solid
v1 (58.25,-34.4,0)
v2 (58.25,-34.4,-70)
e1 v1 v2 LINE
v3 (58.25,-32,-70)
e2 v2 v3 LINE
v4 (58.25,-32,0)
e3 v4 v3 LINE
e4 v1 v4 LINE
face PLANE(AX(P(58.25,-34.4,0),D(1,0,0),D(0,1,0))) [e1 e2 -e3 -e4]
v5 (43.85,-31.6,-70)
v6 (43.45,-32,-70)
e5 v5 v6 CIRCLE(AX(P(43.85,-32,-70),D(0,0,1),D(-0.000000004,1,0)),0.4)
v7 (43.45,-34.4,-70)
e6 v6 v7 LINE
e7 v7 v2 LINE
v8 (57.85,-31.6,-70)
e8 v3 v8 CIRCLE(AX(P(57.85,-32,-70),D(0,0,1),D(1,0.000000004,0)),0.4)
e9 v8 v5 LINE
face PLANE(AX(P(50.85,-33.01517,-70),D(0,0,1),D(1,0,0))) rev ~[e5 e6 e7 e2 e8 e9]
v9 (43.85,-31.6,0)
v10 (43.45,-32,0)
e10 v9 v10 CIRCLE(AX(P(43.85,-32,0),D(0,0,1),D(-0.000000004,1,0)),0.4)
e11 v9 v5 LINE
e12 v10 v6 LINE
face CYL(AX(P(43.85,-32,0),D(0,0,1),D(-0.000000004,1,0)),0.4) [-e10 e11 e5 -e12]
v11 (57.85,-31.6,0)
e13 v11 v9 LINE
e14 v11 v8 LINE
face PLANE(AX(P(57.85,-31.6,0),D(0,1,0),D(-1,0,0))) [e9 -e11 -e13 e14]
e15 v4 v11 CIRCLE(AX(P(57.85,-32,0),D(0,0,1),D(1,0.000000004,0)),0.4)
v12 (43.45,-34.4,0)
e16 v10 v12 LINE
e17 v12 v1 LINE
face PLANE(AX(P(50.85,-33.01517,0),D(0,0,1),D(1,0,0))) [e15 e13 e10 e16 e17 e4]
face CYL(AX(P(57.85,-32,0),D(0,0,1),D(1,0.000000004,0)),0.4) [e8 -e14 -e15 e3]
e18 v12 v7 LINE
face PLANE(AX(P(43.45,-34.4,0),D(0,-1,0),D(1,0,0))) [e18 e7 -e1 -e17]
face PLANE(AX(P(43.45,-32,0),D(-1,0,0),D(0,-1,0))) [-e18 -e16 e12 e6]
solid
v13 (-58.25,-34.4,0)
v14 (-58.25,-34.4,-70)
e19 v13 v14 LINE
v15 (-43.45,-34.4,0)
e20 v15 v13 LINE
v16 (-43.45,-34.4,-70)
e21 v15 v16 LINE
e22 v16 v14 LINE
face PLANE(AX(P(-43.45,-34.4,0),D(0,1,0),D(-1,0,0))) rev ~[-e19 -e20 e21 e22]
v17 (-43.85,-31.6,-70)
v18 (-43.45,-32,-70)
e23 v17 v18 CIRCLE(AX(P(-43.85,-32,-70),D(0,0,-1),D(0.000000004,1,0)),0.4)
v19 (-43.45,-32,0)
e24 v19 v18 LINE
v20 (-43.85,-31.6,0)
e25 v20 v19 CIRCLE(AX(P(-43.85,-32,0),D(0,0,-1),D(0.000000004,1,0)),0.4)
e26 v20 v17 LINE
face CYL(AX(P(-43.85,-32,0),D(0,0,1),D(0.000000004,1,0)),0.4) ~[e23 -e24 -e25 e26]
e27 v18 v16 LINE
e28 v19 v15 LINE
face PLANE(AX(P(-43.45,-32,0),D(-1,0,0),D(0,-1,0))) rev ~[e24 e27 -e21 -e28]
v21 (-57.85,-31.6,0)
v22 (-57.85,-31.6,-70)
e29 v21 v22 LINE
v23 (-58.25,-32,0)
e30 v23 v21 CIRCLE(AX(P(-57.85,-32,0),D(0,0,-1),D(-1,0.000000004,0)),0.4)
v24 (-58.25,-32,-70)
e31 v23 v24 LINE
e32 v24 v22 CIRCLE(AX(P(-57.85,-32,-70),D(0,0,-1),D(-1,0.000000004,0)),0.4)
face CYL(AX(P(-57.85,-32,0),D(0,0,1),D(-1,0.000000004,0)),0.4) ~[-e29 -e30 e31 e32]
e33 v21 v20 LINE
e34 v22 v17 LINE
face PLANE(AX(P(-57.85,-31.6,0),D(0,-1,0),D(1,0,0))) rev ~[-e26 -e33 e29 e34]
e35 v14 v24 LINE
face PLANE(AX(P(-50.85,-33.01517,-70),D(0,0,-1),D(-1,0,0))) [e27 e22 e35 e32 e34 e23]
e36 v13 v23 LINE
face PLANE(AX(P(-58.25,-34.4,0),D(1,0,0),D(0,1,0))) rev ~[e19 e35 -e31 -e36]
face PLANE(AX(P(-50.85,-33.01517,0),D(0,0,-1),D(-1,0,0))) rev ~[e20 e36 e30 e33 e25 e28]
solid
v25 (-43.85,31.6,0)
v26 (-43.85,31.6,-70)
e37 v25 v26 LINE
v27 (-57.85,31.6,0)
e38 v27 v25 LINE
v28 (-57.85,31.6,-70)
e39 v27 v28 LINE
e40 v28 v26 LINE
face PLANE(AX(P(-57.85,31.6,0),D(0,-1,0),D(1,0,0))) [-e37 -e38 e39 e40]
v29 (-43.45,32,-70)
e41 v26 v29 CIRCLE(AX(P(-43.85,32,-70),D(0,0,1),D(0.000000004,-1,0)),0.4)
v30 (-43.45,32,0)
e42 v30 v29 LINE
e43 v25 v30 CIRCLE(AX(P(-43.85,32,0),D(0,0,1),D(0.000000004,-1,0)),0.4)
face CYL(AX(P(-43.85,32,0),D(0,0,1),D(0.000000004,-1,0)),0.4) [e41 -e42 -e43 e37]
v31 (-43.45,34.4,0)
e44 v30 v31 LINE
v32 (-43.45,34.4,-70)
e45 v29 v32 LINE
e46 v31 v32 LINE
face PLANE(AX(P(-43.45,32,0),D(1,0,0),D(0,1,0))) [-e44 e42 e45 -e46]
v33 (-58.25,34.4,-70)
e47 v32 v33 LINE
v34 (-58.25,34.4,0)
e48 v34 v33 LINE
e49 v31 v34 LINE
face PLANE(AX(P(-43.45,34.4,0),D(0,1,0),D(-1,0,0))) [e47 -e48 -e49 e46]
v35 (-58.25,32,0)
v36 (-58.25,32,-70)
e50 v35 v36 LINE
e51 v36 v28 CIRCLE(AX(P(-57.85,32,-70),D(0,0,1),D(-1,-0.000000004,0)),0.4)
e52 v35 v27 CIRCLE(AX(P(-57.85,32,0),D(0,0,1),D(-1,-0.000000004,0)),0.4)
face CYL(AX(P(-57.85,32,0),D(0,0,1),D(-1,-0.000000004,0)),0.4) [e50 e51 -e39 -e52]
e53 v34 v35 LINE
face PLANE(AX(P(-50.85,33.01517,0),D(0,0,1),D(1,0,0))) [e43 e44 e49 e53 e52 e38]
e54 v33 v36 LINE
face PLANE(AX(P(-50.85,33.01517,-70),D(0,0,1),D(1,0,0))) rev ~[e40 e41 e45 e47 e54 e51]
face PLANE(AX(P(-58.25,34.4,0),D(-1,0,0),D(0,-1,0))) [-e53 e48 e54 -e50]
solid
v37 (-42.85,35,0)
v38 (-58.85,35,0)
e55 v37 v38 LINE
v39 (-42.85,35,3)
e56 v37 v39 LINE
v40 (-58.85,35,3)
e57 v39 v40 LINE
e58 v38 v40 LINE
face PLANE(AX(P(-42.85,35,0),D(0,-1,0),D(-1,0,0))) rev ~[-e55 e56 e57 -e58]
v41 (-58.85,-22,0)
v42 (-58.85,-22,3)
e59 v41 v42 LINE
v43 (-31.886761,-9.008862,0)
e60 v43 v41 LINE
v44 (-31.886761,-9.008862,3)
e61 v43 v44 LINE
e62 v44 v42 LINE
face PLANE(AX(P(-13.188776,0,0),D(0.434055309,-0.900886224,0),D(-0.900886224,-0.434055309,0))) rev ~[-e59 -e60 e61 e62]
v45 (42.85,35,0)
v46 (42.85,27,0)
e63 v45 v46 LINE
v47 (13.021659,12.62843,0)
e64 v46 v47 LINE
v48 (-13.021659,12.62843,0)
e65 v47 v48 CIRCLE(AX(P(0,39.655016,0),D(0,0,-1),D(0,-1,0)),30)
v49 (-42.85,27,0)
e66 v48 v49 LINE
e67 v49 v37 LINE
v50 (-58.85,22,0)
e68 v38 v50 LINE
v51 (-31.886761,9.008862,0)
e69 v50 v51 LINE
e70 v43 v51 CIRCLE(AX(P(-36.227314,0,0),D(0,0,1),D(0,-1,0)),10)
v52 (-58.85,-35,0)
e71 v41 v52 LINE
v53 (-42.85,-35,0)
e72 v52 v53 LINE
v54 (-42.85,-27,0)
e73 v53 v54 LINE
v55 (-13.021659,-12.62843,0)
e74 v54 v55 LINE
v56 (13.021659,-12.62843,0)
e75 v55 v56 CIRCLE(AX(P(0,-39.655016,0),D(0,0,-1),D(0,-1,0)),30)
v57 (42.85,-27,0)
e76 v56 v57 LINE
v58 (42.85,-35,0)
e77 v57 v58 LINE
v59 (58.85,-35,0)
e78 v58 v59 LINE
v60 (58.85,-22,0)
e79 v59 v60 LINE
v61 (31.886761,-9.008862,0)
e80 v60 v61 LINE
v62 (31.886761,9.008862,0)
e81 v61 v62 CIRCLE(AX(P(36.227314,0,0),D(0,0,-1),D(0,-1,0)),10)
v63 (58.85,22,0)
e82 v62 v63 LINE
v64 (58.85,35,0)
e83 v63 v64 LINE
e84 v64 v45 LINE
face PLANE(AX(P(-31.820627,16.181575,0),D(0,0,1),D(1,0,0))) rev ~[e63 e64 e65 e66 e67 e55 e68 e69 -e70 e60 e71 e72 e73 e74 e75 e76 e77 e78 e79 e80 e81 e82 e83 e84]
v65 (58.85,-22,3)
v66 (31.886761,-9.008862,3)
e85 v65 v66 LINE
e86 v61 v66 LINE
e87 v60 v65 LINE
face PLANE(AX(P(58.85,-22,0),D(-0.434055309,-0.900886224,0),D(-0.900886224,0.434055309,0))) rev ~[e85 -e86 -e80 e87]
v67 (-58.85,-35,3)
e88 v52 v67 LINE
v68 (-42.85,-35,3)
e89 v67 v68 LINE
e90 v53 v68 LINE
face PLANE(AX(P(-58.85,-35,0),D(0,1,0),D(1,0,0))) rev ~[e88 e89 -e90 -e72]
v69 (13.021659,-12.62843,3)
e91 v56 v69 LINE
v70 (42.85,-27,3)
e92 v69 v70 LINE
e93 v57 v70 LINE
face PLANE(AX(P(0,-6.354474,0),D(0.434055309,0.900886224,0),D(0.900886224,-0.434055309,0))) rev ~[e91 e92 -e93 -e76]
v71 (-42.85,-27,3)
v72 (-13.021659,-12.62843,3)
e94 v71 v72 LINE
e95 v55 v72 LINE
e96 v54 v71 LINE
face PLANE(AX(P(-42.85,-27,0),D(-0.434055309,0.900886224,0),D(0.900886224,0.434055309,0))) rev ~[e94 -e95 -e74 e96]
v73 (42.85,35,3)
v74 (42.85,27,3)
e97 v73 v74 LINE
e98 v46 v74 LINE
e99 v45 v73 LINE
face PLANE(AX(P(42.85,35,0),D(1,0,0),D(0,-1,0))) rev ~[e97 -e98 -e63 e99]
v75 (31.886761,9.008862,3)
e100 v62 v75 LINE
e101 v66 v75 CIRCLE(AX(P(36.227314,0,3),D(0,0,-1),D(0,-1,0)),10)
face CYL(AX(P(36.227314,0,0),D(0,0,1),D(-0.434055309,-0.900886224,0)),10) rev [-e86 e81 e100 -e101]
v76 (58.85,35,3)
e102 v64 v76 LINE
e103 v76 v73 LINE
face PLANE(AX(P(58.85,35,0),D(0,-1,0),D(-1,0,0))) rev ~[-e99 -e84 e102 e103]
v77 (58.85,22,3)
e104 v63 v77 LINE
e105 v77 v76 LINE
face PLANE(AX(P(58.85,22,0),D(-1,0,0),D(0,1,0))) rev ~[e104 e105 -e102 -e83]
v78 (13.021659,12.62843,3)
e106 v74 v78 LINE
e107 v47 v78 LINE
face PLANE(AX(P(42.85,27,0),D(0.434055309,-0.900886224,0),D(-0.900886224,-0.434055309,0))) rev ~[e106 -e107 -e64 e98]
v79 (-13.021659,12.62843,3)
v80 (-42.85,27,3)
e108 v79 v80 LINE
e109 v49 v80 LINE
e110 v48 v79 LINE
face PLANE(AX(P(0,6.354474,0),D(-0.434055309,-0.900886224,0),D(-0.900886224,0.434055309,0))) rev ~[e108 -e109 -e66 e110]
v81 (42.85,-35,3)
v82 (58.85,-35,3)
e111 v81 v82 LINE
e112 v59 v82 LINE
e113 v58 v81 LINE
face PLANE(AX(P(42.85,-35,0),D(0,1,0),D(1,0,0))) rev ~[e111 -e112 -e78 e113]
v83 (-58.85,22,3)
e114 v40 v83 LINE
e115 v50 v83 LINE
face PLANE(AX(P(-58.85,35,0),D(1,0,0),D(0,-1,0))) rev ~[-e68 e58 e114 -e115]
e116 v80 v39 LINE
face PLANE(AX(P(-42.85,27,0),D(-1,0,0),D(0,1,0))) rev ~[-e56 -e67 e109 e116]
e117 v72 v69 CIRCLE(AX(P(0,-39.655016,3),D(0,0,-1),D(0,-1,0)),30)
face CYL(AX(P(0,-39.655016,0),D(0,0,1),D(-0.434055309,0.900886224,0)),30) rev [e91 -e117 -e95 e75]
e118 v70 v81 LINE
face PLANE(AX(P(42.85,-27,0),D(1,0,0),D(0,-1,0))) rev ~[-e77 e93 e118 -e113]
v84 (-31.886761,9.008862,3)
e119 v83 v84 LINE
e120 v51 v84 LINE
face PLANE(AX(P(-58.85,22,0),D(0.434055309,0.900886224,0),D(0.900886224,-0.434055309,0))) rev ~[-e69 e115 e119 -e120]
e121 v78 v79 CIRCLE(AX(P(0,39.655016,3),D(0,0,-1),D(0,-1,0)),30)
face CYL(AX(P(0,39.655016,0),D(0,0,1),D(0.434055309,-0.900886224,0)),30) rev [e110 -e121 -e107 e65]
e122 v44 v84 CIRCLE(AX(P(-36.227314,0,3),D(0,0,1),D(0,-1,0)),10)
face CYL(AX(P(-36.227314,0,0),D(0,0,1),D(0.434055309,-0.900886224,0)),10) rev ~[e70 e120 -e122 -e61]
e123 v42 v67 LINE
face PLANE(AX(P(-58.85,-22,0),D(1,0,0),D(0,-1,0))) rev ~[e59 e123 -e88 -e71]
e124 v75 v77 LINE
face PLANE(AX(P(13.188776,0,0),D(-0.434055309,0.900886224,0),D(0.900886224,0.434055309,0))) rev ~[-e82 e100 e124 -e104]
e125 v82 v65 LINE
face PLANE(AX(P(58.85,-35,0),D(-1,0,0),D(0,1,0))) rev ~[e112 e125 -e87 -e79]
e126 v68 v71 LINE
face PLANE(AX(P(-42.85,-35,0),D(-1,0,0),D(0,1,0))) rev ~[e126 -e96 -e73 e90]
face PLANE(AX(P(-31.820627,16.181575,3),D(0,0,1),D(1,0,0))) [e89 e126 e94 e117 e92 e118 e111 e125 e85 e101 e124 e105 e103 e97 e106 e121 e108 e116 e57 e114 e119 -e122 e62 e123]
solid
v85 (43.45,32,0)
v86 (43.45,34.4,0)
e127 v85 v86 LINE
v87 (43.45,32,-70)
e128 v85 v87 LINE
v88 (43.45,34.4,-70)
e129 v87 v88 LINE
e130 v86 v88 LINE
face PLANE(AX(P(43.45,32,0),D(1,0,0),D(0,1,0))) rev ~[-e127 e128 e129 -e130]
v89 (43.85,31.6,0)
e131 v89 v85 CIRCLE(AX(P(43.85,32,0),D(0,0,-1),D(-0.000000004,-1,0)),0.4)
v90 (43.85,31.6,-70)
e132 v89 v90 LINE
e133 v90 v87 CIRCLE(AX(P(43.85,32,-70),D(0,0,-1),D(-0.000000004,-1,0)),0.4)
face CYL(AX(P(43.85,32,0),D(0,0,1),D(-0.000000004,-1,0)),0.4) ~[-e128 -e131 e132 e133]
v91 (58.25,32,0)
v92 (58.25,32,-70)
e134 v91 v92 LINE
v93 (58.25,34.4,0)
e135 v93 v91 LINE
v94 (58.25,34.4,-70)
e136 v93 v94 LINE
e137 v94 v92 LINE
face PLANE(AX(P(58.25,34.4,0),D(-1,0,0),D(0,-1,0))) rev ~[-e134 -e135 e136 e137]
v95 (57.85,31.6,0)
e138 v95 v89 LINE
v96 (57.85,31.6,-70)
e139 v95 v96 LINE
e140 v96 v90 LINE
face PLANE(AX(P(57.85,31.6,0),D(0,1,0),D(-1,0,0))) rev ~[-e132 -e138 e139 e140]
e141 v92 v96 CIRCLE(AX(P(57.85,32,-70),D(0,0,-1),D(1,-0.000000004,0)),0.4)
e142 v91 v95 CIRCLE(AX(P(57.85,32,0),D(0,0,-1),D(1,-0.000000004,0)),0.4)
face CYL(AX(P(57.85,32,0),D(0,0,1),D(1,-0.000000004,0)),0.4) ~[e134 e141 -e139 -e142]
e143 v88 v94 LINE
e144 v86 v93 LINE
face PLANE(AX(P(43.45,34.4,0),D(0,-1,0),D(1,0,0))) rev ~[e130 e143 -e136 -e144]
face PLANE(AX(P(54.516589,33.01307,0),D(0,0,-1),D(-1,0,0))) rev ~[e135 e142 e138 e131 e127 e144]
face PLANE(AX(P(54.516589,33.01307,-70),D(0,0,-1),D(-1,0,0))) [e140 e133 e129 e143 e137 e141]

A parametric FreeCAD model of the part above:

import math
import FreeCAD as App
import Part
import Sketcher


def edges_at(feature, points):
    """Names of the edges that pass closest to the given points."""
    edges = feature.Shape.Edges
    near = lambda p: min(range(len(edges)), key=lambda i: edges[i].distToShape(Part.Vertex(*p))[0])
    return sorted({f"Edge{near(p) + 1}" for p in points})


def add_polygon(sketch, points):
    """Adds a closed chain of lines whose ends are joined by coincident constraints."""
    first, n = sketch.GeometryCount, len(points)
    for a, b in zip(points, points[1:] + points[:1]):
        sketch.addGeometry(Part.LineSegment(App.Vector(*a, 0), App.Vector(*b, 0)), False)
    for i in range(n):
        sketch.addConstraint(Sketcher.Constraint("Coincident", first + i, 2, first + (i + 1) % n, 1))

doc = App.newDocument("Part")
params = doc.addObject("Spreadsheet::Sheet", "Params")
for row, (alias, value) in enumerate([
    ("sketch1_width", "16 mm"),
    ("sketch1_height", "13 mm"),
    ("sketch1_height2", "8 mm"),
    ("pad1_length", "3 mm"),
    ("fillet_radius", "30 mm"),
    ("fillet2_radius", "10 mm"),
    ("sketch2_radius", "0.4 mm"),
    ("sketch2_width", "14 mm"),
    ("sketch2_height", "2.4 mm"),
    ("pad2_length", "70 mm"),
], start=1):
    params.set(f"A{row}", alias)
    params.set(f"B{row}", "=" + value)
    params.setAlias(f"B{row}", alias)

body = doc.addObject("PartDesign::Body", "Body")

# Sketch on XY plane
sketch1 = body.newObject("Sketcher::SketchObject", "Sketch")
sketch1.AttachmentSupport = (doc.getObject("XY_Plane"), [""])
sketch1.MapMode = "FlatFace"
add_polygon(sketch1, [(-58.85, 22), (-13.188776, 0), (-58.85, -22), (-58.85, -35), (-42.85, -35), (-42.85, -27), (0, -6.354474), (42.85, -27), (42.85, -35), (58.85, -35), (58.85, -22), (13.188776, 0), (58.85, 22), (58.85, 35), (42.85, 35), (42.85, 27), (0, 6.354474), (-42.85, 27), (-42.85, 35), (-58.85, 35)])  # lines 0-19
sketch1.addConstraint([
    Sketcher.Constraint("Vertical", 2),
    Sketcher.Constraint("Horizontal", 3),
    Sketcher.Constraint("Vertical", 4),
    Sketcher.Constraint("Vertical", 7),
    Sketcher.Constraint("Horizontal", 8),
    Sketcher.Constraint("Vertical", 9),
    Sketcher.Constraint("Vertical", 12),
    Sketcher.Constraint("Horizontal", 13),
    Sketcher.Constraint("Vertical", 14),
    Sketcher.Constraint("Vertical", 17),
    Sketcher.Constraint("Horizontal", 18),
    Sketcher.Constraint("Vertical", 19),
    Sketcher.Constraint("Symmetric", 0, 2, 10, 2, -1, 1),
    Sketcher.Constraint("Symmetric", 1, 2, 11, 2, -1, 1),
    Sketcher.Constraint("Symmetric", 3, 2, 13, 2, -1, 1),
    Sketcher.Constraint("Symmetric", 5, 2, 15, 2, -1, 1),
    Sketcher.Constraint("Symmetric", 6, 2, 16, 2, -1, 1),
    Sketcher.Constraint("Symmetric", 8, 2, 18, 2, -1, 1),
    Sketcher.Constraint("Symmetric", 4, 2, 6, 2, -2),
    Sketcher.Constraint("Symmetric", 2, 2, 8, 2, -2),
    Sketcher.Constraint("PointOnObject", 0, 2, -1),
    Sketcher.Constraint("PointOnObject", 5, 2, -2),
    Sketcher.Constraint("Parallel", 1, 5),
    Sketcher.Constraint("Parallel", 0, 6),
    Sketcher.Constraint("Parallel", 6, 10),
    Sketcher.Constraint("Parallel", 11, 15),
    Sketcher.Constraint("DistanceX", 3, 1, 3, 2, 16.0),
    Sketcher.Constraint("DistanceY", 2, 2, 2, 1, 13.0),
    Sketcher.Constraint("DistanceY", 4, 1, 4, 2, 8.0),
    Sketcher.Constraint("DistanceY", 1, 2, -1, 1, 22.0),
    Sketcher.Constraint("DistanceX", 4, 2, 6, 2, 85.7),
    Sketcher.Constraint("DistanceX", 0, 2, 10, 2, 26.377551),
])
sketch1.setExpression("Constraints[46]", "Params.sketch1_width")
sketch1.setExpression("Constraints[47]", "Params.sketch1_height")
sketch1.setExpression("Constraints[48]", "Params.sketch1_height2")
pad1 = body.newObject("PartDesign::Pad", "Pad")
pad1.Profile = sketch1
pad1.setExpression("Length", "Params.pad1_length")
doc.recompute()

fillet = body.newObject("PartDesign::Fillet", "Fillet")
fillet.Base = (pad1, edges_at(pad1, [(0, -6.354, 1.5), (0, 6.354, 1.5)]))
fillet.setExpression("Radius", "Params.fillet_radius")
doc.recompute()

fillet2 = body.newObject("PartDesign::Fillet", "Fillet001")
fillet2.Base = (fillet, edges_at(fillet, [(-13.189, 0, 1.5), (13.189, 0, 1.5)]))
fillet2.setExpression("Radius", "Params.fillet2_radius")
body2 = doc.addObject("PartDesign::Body", "Body001")
body2.AllowCompound = True

# Sketch on XY plane
sketch2 = body2.newObject("Sketcher::SketchObject", "Sketch001")
sketch2.AttachmentSupport = (doc.getObject("XY_Plane001"), [""])
sketch2.MapMode = "FlatFace"
sketch2.addGeometry([
    Part.LineSegment(App.Vector(58.25, 34.4, 0), App.Vector(58.25, 32, 0)),  # 0
    Part.ArcOfCircle(Part.Circle(App.Vector(57.85, 32, 0), App.Vector(0, 0, 1), 0.4), math.radians(-90), math.radians(0)),  # 1
    Part.LineSegment(App.Vector(57.85, 31.6, 0), App.Vector(43.85, 31.6, 0)),  # 2
    Part.ArcOfCircle(Part.Circle(App.Vector(43.85, 32, 0), App.Vector(0, 0, 1), 0.4), math.radians(-180), math.radians(-90)),  # 3
    Part.LineSegment(App.Vector(43.45, 32, 0), App.Vector(43.45, 34.4, 0)),  # 4
    Part.LineSegment(App.Vector(43.45, 34.4, 0), App.Vector(58.25, 34.4, 0)),  # 5
    Part.LineSegment(App.Vector(43.85, -31.6, 0), App.Vector(57.85, -31.6, 0)),  # 6
    Part.ArcOfCircle(Part.Circle(App.Vector(57.85, -32, 0), App.Vector(0, 0, 1), 0.4), math.radians(0), math.radians(90)),  # 7
    Part.LineSegment(App.Vector(58.25, -32, 0), App.Vector(58.25, -34.4, 0)),  # 8
    Part.LineSegment(App.Vector(58.25, -34.4, 0), App.Vector(43.45, -34.4, 0)),  # 9
    Part.LineSegment(App.Vector(43.45, -34.4, 0), App.Vector(43.45, -32, 0)),  # 10
    Part.ArcOfCircle(Part.Circle(App.Vector(43.85, -32, 0), App.Vector(0, 0, 1), 0.4), math.radians(90), math.radians(180)),  # 11
    Part.LineSegment(App.Vector(-57.85, -31.6, 0), App.Vector(-43.85, -31.6, 0)),  # 12
    Part.ArcOfCircle(Part.Circle(App.Vector(-43.85, -32, 0), App.Vector(0, 0, 1), 0.4), math.radians(0), math.radians(90)),  # 13
    Part.LineSegment(App.Vector(-43.45, -32, 0), App.Vector(-43.45, -34.4, 0)),  # 14
    Part.LineSegment(App.Vector(-43.45, -34.4, 0), App.Vector(-58.25, -34.4, 0)),  # 15
    Part.LineSegment(App.Vector(-58.25, -34.4, 0), App.Vector(-58.25, -32, 0)),  # 16
    Part.ArcOfCircle(Part.Circle(App.Vector(-57.85, -32, 0), App.Vector(0, 0, 1), 0.4), math.radians(90), math.radians(180)),  # 17
    Part.LineSegment(App.Vector(-43.45, 34.4, 0), App.Vector(-43.45, 32, 0)),  # 18
    Part.ArcOfCircle(Part.Circle(App.Vector(-43.85, 32, 0), App.Vector(0, 0, 1), 0.4), math.radians(-90), math.radians(0)),  # 19
    Part.LineSegment(App.Vector(-43.85, 31.6, 0), App.Vector(-57.85, 31.6, 0)),  # 20
    Part.ArcOfCircle(Part.Circle(App.Vector(-57.85, 32, 0), App.Vector(0, 0, 1), 0.4), math.radians(-180), math.radians(-90)),  # 21
    Part.LineSegment(App.Vector(-58.25, 32, 0), App.Vector(-58.25, 34.4, 0)),  # 22
    Part.LineSegment(App.Vector(-58.25, 34.4, 0), App.Vector(-43.45, 34.4, 0)),  # 23
], False)
sketch2.addConstraint([
    Sketcher.Constraint("Tangent", 0, 2, 1, 2),
    Sketcher.Constraint("Tangent", 1, 1, 2, 1),
    Sketcher.Constraint("Tangent", 2, 2, 3, 2),
    Sketcher.Constraint("Tangent", 3, 1, 4, 1),
    Sketcher.Constraint("Coincident", 4, 2, 5, 1),
    Sketcher.Constraint("Coincident", 5, 2, 0, 1),
    Sketcher.Constraint("Tangent", 6, 2, 7, 2),
    Sketcher.Constraint("Tangent", 7, 1, 8, 1),
    Sketcher.Constraint("Coincident", 8, 2, 9, 1),
    Sketcher.Constraint("Coincident", 9, 2, 10, 1),
    Sketcher.Constraint("Tangent", 10, 2, 11, 2),
    Sketcher.Constraint("Tangent", 11, 1, 6, 1),
    Sketcher.Constraint("Tangent", 12, 2, 13, 2),
    Sketcher.Constraint("Tangent", 13, 1, 14, 1),
    Sketcher.Constraint("Coincident", 14, 2, 15, 1),
    Sketcher.Constraint("Coincident", 15, 2, 16, 1),
    Sketcher.Constraint("Tangent", 16, 2, 17, 2),
    Sketcher.Constraint("Tangent", 17, 1, 12, 1),
    Sketcher.Constraint("Tangent", 18, 2, 19, 2),
    Sketcher.Constraint("Tangent", 19, 1, 20, 1),
    Sketcher.Constraint("Tangent", 20, 2, 21, 2),
    Sketcher.Constraint("Tangent", 21, 1, 22, 1),
    Sketcher.Constraint("Coincident", 22, 2, 23, 1),
    Sketcher.Constraint("Coincident", 23, 2, 18, 1),
    Sketcher.Constraint("Vertical", 0),
    Sketcher.Constraint("Horizontal", 2),
    Sketcher.Constraint("Vertical", 4),
    Sketcher.Constraint("Horizontal", 5),
    Sketcher.Constraint("Horizontal", 6),
    Sketcher.Constraint("Vertical", 8),
    Sketcher.Constraint("Horizontal", 9),
    Sketcher.Constraint("Vertical", 10),
    Sketcher.Constraint("Horizontal", 12),
    Sketcher.Constraint("Vertical", 14),
    Sketcher.Constraint("Horizontal", 15),
    Sketcher.Constraint("Vertical", 16),
    Sketcher.Constraint("Vertical", 18),
    Sketcher.Constraint("Horizontal", 20),
    Sketcher.Constraint("Vertical", 22),
    Sketcher.Constraint("Horizontal", 23),
    Sketcher.Constraint("Equal", 1, 3),
    Sketcher.Constraint("Equal", 3, 7),
    Sketcher.Constraint("Equal", 7, 11),
    Sketcher.Constraint("Equal", 11, 13),
    Sketcher.Constraint("Equal", 13, 17),
    Sketcher.Constraint("Equal", 17, 19),
    Sketcher.Constraint("Equal", 19, 21),
    Sketcher.Constraint("Symmetric", 3, 3, 13, 3, -1, 1),
    Sketcher.Constraint("Symmetric", 11, 3, 19, 3, -1, 1),
    Sketcher.Constraint("Symmetric", 5, 2, 15, 2, -1, 1),
    Sketcher.Constraint("Symmetric", 8, 2, 22, 2, -1, 1),
    Sketcher.Constraint("Symmetric", 11, 3, 13, 3, -2),
    Sketcher.Constraint("Symmetric", 8, 2, 15, 2, -2),
    Sketcher.Constraint("Radius", 1, 0.4),
    Sketcher.Constraint("DistanceX", 2, 2, 2, 1, 14.0),
    Sketcher.Constraint("DistanceY", 0, 2, 0, 1, 2.4),
    Sketcher.Constraint("DistanceY", -1, 1, 1, 3, 32.0),
    Sketcher.Constraint("DistanceX", 13, 3, 11, 3, 87.7),
])
sketch2.setExpression("Constraints[53]", "Params.sketch2_radius")
sketch2.setExpression("Constraints[54]", "Params.sketch2_width")
sketch2.setExpression("Constraints[55]", "Params.sketch2_height")
pad2 = body2.newObject("PartDesign::Pad", "Pad001")
pad2.Profile = sketch2
pad2.setExpression("Length", "Params.pad2_length")
pad2.Reversed = True

doc.recompute()
